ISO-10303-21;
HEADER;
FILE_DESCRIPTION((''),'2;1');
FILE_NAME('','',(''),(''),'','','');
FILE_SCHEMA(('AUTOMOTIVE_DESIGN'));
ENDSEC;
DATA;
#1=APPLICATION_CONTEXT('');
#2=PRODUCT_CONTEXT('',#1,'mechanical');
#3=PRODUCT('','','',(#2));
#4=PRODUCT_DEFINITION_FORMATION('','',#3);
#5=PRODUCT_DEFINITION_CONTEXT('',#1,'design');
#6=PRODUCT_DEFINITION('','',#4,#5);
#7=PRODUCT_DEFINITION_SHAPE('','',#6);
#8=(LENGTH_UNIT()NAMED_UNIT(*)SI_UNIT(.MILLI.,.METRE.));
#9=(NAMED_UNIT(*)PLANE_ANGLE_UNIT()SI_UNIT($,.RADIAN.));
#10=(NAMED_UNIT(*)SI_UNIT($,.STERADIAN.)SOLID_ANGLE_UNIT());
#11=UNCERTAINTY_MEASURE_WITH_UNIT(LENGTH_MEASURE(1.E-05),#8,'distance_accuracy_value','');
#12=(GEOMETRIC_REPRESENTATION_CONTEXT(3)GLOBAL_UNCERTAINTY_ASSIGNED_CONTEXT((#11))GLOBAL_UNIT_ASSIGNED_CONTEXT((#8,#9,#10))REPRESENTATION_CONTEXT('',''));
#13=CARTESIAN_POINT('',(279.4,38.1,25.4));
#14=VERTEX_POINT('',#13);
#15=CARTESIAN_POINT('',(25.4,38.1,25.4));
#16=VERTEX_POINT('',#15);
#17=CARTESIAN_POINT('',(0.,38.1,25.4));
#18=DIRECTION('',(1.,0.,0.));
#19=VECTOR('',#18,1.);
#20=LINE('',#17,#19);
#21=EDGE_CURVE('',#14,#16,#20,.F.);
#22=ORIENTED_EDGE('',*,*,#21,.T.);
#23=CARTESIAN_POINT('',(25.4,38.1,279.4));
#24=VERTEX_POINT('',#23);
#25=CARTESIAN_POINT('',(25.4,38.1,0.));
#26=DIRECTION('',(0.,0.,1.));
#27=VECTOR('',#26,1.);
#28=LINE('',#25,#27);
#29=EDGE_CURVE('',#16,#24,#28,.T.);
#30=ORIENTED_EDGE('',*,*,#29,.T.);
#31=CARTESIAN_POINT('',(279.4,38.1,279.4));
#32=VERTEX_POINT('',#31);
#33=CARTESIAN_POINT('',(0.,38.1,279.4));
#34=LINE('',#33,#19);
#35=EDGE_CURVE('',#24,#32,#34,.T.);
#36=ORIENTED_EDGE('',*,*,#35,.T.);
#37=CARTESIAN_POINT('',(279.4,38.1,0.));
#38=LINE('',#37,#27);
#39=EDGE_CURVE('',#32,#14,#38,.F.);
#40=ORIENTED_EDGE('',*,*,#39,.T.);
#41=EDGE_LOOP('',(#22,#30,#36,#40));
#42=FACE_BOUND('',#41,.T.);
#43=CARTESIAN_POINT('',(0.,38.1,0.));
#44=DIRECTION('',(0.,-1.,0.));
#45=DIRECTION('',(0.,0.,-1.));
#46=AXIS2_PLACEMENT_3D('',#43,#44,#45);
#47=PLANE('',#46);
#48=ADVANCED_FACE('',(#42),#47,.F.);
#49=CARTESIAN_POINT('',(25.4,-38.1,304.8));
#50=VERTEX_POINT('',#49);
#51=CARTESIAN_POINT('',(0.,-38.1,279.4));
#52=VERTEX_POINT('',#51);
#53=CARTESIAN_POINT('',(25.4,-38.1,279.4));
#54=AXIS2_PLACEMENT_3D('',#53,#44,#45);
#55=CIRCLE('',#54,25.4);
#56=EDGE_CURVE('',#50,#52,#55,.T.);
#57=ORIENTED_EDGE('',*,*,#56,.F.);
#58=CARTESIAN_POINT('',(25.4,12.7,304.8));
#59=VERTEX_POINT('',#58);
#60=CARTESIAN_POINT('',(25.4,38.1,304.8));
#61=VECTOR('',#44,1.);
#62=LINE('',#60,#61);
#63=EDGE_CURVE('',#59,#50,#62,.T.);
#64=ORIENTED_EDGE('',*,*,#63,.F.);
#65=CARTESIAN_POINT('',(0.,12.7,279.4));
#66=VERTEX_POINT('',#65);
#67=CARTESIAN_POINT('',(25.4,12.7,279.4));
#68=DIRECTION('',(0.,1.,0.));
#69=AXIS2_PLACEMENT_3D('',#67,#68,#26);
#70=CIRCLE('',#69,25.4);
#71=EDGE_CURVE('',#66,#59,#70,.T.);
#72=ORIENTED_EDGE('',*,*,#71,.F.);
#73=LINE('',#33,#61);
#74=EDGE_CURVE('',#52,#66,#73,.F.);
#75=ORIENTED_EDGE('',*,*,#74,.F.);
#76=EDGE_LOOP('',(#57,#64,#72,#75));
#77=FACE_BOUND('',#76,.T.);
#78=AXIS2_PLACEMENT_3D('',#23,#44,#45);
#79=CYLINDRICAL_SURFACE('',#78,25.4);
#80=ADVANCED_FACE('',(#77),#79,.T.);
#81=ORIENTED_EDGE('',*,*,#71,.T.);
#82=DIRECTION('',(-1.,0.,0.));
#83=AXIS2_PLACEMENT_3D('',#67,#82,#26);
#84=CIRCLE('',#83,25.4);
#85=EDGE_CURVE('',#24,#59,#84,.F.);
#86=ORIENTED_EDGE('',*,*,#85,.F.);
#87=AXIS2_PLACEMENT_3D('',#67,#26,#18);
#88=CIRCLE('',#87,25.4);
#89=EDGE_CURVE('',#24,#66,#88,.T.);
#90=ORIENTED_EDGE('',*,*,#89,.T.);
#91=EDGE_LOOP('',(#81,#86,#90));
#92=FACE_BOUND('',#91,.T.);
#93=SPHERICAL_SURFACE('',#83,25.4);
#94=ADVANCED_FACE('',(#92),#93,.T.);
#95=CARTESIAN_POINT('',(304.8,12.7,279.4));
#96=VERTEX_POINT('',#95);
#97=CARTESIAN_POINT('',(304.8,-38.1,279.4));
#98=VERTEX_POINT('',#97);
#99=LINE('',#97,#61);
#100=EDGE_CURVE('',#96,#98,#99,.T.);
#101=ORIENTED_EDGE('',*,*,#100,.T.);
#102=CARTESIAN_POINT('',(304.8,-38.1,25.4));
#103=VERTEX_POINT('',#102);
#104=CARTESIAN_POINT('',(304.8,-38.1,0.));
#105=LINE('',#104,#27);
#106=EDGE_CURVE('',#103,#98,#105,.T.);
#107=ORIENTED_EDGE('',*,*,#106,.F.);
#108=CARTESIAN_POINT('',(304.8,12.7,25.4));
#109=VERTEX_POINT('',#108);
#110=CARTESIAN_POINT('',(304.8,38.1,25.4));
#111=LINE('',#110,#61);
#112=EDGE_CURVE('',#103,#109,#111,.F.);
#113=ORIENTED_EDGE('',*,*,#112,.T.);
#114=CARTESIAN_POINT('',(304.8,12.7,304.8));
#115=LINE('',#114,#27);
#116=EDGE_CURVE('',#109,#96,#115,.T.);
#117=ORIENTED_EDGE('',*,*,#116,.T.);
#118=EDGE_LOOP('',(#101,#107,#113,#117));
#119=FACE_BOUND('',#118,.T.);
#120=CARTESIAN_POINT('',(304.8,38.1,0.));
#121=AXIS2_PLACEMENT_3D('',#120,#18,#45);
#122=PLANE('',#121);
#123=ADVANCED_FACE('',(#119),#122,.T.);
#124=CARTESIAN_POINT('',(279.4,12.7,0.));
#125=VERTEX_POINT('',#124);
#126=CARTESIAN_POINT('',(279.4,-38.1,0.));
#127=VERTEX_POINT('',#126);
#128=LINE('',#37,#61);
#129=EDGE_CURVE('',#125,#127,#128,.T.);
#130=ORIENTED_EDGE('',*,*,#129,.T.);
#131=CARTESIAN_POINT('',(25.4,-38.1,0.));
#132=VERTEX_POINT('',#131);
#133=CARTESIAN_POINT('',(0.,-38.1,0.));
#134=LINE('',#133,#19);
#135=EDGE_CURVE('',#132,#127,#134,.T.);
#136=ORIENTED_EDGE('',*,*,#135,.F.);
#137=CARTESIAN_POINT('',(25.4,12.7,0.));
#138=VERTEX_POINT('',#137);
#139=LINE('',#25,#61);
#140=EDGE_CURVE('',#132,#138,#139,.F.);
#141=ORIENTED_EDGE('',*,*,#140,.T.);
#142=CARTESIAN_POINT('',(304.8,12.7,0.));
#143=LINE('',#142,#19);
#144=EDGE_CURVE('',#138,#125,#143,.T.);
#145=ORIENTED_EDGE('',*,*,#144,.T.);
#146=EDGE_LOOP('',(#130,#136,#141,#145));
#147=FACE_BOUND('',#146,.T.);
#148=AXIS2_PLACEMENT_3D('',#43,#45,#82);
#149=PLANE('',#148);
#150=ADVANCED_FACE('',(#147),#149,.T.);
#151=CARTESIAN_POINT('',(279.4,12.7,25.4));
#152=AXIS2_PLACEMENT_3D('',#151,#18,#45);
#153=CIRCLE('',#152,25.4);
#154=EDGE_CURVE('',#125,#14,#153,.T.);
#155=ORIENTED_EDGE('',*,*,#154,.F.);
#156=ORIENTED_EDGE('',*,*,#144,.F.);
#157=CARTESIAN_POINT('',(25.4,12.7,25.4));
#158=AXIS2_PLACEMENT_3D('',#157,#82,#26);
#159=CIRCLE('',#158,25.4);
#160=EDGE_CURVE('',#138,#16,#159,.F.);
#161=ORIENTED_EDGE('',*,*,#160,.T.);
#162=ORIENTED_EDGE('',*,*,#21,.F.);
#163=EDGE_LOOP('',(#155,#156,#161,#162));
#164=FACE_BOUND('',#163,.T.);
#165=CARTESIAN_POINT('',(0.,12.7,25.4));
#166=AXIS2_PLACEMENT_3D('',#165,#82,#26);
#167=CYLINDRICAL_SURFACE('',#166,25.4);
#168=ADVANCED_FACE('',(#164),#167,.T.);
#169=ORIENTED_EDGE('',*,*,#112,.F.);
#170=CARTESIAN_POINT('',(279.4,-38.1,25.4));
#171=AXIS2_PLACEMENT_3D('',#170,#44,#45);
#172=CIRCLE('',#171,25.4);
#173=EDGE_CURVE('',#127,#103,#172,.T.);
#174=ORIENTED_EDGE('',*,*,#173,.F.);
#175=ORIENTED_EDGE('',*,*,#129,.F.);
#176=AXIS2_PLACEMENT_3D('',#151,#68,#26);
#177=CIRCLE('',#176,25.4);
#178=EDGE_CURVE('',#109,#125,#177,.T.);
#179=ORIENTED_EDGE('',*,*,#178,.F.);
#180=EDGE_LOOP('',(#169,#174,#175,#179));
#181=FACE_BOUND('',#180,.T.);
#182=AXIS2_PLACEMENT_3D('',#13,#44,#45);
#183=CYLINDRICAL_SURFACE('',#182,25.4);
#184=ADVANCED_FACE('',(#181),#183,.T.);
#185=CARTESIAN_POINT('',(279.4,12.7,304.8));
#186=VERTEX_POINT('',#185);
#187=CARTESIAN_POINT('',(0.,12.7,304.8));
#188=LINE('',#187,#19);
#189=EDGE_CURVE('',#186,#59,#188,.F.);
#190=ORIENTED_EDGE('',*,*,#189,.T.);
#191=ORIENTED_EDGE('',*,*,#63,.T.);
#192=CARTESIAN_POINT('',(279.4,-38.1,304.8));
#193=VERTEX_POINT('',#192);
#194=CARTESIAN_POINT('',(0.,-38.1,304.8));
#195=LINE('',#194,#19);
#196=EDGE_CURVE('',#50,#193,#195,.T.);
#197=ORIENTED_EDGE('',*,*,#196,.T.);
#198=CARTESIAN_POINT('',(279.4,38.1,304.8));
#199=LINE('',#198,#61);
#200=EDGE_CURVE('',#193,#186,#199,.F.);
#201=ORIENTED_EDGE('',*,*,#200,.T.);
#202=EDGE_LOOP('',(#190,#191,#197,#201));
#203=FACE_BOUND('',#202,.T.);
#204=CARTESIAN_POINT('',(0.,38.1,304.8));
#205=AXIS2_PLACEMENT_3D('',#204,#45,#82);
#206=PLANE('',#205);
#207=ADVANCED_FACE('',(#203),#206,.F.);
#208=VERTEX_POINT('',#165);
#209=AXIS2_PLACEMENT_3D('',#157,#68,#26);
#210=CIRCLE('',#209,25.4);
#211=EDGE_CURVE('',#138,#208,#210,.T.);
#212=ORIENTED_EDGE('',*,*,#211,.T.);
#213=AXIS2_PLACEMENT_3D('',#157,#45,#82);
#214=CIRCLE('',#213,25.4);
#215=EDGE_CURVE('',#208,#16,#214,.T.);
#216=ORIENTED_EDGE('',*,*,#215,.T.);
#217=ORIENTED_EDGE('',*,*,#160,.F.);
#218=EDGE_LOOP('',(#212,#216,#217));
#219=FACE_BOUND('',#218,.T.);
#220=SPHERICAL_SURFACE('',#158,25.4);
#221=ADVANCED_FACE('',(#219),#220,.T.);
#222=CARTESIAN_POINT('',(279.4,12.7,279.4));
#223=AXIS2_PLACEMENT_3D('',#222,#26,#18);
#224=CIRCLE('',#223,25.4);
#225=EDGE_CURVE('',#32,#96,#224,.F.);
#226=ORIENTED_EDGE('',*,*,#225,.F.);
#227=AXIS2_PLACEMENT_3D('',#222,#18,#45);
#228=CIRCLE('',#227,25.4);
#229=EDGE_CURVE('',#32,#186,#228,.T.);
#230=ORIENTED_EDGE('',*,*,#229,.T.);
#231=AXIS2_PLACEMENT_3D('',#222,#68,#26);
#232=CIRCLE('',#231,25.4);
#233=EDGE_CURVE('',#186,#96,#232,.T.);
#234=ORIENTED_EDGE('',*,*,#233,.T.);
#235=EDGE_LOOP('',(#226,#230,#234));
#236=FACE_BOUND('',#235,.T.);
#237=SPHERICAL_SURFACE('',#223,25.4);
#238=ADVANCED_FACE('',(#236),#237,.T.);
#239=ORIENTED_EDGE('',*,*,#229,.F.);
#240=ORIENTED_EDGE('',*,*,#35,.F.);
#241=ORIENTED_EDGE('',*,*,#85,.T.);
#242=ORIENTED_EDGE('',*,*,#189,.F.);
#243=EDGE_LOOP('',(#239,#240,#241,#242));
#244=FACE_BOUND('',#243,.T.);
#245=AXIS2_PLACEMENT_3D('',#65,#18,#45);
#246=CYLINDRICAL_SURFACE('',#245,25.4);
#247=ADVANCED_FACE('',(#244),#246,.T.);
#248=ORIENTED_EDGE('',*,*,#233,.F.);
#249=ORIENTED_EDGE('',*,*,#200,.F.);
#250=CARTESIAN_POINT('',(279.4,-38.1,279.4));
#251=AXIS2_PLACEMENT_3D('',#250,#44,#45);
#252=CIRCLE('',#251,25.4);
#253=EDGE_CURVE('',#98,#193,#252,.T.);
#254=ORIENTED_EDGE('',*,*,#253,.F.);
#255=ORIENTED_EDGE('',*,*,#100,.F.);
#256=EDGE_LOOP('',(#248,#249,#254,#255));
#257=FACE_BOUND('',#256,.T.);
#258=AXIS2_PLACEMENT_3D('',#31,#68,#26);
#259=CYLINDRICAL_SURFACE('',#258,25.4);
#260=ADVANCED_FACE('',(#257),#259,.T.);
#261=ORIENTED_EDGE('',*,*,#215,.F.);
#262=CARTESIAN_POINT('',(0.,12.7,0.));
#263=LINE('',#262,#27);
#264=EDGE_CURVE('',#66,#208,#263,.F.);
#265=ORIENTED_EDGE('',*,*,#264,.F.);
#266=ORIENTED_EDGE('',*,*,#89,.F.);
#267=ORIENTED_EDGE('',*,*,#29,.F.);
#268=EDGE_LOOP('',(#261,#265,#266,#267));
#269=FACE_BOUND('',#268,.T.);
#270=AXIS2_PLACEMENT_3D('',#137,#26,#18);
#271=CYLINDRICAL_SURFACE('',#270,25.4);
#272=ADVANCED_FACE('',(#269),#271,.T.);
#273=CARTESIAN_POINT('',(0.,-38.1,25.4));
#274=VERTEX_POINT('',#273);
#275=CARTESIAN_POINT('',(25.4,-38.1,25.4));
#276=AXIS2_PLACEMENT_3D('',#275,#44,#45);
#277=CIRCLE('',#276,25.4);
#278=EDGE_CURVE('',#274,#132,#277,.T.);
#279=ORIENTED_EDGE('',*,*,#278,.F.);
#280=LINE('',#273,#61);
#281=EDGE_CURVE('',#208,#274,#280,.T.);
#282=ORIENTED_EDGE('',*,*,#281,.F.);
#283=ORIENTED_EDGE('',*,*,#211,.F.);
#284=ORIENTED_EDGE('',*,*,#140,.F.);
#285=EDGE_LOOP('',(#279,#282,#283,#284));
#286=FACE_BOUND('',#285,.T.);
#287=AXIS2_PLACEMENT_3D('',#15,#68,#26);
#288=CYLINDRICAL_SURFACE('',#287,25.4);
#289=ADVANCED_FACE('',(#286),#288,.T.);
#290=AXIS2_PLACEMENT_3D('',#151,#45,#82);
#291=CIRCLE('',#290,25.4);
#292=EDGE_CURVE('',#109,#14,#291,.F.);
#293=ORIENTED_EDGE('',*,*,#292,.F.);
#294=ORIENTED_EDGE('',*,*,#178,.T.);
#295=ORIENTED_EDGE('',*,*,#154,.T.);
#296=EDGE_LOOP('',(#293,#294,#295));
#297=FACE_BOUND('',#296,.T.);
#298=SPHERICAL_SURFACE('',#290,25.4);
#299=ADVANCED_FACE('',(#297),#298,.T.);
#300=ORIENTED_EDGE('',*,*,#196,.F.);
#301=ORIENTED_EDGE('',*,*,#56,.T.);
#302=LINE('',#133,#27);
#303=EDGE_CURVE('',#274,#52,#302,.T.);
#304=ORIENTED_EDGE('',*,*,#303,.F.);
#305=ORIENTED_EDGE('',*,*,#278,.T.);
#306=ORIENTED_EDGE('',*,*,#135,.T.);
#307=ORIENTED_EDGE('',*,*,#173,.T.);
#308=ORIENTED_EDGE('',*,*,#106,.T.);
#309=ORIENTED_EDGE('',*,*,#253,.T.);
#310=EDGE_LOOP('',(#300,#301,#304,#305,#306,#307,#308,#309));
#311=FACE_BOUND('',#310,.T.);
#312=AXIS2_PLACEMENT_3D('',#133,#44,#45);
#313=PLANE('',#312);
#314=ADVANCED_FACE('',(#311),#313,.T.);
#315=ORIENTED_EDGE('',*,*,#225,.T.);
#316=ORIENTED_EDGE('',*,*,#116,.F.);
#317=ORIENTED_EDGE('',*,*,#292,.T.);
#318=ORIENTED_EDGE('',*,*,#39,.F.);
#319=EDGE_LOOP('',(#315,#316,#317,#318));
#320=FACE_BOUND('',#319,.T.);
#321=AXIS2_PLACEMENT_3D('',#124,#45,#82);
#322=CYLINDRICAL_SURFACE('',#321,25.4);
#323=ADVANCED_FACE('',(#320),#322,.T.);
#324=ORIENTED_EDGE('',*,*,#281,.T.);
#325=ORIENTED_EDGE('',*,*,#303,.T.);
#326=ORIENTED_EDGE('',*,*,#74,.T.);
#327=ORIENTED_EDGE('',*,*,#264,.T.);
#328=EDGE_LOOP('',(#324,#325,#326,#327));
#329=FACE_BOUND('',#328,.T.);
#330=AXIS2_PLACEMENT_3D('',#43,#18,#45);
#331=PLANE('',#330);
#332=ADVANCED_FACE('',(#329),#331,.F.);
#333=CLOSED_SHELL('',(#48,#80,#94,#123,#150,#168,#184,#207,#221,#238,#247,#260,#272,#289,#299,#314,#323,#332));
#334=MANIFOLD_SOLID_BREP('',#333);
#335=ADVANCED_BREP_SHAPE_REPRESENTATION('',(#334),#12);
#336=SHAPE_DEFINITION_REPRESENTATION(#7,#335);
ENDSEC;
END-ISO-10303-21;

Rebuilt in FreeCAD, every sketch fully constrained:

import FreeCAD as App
import Part
import Sketcher

V = App.Vector
Q = App.Units.Quantity


def edges_at(feature, points):
    """Names of the edges that pass closest to the given points."""
    edges = feature.Shape.Edges
    near = lambda p: min(range(len(edges)), key=lambda i: edges[i].distToShape(Part.Vertex(*p))[0])
    return sorted({f"Edge{near(p) + 1}" for p in points})

doc = App.newDocument("Part")
body = doc.addObject("PartDesign::Body", "Body")

# Sketch on XZ plane
sketch1 = body.newObject("Sketcher::SketchObject", "Sketch")
sketch1.AttachmentSupport = (doc.getObject("XZ_Plane"), [""])
sketch1.MapMode = "FlatFace"
sketch1.addGeometry(Part.LineSegment(V(0, 0, 0), V(0, 305, 0)), False)
sketch1.addGeometry(Part.LineSegment(V(0, 305, 0), V(305, 305, 0)), False)
sketch1.addGeometry(Part.LineSegment(V(305, 305, 0), V(305, 0, 0)), False)
sketch1.addGeometry(Part.LineSegment(V(305, 0, 0), V(0, 0, 0)), False)
sketch1.addConstraint(Sketcher.Constraint("Coincident", 0, 2, 1, 1))
sketch1.addConstraint(Sketcher.Constraint("Coincident", 1, 2, 2, 1))
sketch1.addConstraint(Sketcher.Constraint("Coincident", 2, 2, 3, 1))
sketch1.addConstraint(Sketcher.Constraint("Coincident", 3, 2, 0, 1))
sketch1.addConstraint(Sketcher.Constraint("Vertical", 0))
sketch1.addConstraint(Sketcher.Constraint("Horizontal", 1))
sketch1.addConstraint(Sketcher.Constraint("Vertical", 2))
sketch1.addConstraint(Sketcher.Constraint("Horizontal", 3))
sketch1.addConstraint(Sketcher.Constraint("Coincident", 3, 2, -1, 1))
sketch1.addConstraint(Sketcher.Constraint("Equal", 3, 0))
sketch1.addConstraint(Sketcher.Constraint("DistanceX", 1, 1, 1, 2, Q("12 in")))
pad1 = body.newObject("PartDesign::Pad", "Pad")
pad1.Profile = sketch1
pad1.Length = Q("3 in")
pad1.Midplane = True
doc.recompute()

fillet = body.newObject("PartDesign::Fillet", "Fillet")
fillet.Base = (pad1, edges_at(pad1, [
    (152.4, 38.1, 304.8),
    (0, 38.1, 152.4),
    (152.4, 38.1, 0),
    (0, 0, 0),
    (0, 0, 304.8),
    (304.8, 0, 304.8),
    (304.8, 0, 0),
    (304.8, 38.1, 152.4),
]))
fillet.Radius = Q("1 in")

doc.recompute()
